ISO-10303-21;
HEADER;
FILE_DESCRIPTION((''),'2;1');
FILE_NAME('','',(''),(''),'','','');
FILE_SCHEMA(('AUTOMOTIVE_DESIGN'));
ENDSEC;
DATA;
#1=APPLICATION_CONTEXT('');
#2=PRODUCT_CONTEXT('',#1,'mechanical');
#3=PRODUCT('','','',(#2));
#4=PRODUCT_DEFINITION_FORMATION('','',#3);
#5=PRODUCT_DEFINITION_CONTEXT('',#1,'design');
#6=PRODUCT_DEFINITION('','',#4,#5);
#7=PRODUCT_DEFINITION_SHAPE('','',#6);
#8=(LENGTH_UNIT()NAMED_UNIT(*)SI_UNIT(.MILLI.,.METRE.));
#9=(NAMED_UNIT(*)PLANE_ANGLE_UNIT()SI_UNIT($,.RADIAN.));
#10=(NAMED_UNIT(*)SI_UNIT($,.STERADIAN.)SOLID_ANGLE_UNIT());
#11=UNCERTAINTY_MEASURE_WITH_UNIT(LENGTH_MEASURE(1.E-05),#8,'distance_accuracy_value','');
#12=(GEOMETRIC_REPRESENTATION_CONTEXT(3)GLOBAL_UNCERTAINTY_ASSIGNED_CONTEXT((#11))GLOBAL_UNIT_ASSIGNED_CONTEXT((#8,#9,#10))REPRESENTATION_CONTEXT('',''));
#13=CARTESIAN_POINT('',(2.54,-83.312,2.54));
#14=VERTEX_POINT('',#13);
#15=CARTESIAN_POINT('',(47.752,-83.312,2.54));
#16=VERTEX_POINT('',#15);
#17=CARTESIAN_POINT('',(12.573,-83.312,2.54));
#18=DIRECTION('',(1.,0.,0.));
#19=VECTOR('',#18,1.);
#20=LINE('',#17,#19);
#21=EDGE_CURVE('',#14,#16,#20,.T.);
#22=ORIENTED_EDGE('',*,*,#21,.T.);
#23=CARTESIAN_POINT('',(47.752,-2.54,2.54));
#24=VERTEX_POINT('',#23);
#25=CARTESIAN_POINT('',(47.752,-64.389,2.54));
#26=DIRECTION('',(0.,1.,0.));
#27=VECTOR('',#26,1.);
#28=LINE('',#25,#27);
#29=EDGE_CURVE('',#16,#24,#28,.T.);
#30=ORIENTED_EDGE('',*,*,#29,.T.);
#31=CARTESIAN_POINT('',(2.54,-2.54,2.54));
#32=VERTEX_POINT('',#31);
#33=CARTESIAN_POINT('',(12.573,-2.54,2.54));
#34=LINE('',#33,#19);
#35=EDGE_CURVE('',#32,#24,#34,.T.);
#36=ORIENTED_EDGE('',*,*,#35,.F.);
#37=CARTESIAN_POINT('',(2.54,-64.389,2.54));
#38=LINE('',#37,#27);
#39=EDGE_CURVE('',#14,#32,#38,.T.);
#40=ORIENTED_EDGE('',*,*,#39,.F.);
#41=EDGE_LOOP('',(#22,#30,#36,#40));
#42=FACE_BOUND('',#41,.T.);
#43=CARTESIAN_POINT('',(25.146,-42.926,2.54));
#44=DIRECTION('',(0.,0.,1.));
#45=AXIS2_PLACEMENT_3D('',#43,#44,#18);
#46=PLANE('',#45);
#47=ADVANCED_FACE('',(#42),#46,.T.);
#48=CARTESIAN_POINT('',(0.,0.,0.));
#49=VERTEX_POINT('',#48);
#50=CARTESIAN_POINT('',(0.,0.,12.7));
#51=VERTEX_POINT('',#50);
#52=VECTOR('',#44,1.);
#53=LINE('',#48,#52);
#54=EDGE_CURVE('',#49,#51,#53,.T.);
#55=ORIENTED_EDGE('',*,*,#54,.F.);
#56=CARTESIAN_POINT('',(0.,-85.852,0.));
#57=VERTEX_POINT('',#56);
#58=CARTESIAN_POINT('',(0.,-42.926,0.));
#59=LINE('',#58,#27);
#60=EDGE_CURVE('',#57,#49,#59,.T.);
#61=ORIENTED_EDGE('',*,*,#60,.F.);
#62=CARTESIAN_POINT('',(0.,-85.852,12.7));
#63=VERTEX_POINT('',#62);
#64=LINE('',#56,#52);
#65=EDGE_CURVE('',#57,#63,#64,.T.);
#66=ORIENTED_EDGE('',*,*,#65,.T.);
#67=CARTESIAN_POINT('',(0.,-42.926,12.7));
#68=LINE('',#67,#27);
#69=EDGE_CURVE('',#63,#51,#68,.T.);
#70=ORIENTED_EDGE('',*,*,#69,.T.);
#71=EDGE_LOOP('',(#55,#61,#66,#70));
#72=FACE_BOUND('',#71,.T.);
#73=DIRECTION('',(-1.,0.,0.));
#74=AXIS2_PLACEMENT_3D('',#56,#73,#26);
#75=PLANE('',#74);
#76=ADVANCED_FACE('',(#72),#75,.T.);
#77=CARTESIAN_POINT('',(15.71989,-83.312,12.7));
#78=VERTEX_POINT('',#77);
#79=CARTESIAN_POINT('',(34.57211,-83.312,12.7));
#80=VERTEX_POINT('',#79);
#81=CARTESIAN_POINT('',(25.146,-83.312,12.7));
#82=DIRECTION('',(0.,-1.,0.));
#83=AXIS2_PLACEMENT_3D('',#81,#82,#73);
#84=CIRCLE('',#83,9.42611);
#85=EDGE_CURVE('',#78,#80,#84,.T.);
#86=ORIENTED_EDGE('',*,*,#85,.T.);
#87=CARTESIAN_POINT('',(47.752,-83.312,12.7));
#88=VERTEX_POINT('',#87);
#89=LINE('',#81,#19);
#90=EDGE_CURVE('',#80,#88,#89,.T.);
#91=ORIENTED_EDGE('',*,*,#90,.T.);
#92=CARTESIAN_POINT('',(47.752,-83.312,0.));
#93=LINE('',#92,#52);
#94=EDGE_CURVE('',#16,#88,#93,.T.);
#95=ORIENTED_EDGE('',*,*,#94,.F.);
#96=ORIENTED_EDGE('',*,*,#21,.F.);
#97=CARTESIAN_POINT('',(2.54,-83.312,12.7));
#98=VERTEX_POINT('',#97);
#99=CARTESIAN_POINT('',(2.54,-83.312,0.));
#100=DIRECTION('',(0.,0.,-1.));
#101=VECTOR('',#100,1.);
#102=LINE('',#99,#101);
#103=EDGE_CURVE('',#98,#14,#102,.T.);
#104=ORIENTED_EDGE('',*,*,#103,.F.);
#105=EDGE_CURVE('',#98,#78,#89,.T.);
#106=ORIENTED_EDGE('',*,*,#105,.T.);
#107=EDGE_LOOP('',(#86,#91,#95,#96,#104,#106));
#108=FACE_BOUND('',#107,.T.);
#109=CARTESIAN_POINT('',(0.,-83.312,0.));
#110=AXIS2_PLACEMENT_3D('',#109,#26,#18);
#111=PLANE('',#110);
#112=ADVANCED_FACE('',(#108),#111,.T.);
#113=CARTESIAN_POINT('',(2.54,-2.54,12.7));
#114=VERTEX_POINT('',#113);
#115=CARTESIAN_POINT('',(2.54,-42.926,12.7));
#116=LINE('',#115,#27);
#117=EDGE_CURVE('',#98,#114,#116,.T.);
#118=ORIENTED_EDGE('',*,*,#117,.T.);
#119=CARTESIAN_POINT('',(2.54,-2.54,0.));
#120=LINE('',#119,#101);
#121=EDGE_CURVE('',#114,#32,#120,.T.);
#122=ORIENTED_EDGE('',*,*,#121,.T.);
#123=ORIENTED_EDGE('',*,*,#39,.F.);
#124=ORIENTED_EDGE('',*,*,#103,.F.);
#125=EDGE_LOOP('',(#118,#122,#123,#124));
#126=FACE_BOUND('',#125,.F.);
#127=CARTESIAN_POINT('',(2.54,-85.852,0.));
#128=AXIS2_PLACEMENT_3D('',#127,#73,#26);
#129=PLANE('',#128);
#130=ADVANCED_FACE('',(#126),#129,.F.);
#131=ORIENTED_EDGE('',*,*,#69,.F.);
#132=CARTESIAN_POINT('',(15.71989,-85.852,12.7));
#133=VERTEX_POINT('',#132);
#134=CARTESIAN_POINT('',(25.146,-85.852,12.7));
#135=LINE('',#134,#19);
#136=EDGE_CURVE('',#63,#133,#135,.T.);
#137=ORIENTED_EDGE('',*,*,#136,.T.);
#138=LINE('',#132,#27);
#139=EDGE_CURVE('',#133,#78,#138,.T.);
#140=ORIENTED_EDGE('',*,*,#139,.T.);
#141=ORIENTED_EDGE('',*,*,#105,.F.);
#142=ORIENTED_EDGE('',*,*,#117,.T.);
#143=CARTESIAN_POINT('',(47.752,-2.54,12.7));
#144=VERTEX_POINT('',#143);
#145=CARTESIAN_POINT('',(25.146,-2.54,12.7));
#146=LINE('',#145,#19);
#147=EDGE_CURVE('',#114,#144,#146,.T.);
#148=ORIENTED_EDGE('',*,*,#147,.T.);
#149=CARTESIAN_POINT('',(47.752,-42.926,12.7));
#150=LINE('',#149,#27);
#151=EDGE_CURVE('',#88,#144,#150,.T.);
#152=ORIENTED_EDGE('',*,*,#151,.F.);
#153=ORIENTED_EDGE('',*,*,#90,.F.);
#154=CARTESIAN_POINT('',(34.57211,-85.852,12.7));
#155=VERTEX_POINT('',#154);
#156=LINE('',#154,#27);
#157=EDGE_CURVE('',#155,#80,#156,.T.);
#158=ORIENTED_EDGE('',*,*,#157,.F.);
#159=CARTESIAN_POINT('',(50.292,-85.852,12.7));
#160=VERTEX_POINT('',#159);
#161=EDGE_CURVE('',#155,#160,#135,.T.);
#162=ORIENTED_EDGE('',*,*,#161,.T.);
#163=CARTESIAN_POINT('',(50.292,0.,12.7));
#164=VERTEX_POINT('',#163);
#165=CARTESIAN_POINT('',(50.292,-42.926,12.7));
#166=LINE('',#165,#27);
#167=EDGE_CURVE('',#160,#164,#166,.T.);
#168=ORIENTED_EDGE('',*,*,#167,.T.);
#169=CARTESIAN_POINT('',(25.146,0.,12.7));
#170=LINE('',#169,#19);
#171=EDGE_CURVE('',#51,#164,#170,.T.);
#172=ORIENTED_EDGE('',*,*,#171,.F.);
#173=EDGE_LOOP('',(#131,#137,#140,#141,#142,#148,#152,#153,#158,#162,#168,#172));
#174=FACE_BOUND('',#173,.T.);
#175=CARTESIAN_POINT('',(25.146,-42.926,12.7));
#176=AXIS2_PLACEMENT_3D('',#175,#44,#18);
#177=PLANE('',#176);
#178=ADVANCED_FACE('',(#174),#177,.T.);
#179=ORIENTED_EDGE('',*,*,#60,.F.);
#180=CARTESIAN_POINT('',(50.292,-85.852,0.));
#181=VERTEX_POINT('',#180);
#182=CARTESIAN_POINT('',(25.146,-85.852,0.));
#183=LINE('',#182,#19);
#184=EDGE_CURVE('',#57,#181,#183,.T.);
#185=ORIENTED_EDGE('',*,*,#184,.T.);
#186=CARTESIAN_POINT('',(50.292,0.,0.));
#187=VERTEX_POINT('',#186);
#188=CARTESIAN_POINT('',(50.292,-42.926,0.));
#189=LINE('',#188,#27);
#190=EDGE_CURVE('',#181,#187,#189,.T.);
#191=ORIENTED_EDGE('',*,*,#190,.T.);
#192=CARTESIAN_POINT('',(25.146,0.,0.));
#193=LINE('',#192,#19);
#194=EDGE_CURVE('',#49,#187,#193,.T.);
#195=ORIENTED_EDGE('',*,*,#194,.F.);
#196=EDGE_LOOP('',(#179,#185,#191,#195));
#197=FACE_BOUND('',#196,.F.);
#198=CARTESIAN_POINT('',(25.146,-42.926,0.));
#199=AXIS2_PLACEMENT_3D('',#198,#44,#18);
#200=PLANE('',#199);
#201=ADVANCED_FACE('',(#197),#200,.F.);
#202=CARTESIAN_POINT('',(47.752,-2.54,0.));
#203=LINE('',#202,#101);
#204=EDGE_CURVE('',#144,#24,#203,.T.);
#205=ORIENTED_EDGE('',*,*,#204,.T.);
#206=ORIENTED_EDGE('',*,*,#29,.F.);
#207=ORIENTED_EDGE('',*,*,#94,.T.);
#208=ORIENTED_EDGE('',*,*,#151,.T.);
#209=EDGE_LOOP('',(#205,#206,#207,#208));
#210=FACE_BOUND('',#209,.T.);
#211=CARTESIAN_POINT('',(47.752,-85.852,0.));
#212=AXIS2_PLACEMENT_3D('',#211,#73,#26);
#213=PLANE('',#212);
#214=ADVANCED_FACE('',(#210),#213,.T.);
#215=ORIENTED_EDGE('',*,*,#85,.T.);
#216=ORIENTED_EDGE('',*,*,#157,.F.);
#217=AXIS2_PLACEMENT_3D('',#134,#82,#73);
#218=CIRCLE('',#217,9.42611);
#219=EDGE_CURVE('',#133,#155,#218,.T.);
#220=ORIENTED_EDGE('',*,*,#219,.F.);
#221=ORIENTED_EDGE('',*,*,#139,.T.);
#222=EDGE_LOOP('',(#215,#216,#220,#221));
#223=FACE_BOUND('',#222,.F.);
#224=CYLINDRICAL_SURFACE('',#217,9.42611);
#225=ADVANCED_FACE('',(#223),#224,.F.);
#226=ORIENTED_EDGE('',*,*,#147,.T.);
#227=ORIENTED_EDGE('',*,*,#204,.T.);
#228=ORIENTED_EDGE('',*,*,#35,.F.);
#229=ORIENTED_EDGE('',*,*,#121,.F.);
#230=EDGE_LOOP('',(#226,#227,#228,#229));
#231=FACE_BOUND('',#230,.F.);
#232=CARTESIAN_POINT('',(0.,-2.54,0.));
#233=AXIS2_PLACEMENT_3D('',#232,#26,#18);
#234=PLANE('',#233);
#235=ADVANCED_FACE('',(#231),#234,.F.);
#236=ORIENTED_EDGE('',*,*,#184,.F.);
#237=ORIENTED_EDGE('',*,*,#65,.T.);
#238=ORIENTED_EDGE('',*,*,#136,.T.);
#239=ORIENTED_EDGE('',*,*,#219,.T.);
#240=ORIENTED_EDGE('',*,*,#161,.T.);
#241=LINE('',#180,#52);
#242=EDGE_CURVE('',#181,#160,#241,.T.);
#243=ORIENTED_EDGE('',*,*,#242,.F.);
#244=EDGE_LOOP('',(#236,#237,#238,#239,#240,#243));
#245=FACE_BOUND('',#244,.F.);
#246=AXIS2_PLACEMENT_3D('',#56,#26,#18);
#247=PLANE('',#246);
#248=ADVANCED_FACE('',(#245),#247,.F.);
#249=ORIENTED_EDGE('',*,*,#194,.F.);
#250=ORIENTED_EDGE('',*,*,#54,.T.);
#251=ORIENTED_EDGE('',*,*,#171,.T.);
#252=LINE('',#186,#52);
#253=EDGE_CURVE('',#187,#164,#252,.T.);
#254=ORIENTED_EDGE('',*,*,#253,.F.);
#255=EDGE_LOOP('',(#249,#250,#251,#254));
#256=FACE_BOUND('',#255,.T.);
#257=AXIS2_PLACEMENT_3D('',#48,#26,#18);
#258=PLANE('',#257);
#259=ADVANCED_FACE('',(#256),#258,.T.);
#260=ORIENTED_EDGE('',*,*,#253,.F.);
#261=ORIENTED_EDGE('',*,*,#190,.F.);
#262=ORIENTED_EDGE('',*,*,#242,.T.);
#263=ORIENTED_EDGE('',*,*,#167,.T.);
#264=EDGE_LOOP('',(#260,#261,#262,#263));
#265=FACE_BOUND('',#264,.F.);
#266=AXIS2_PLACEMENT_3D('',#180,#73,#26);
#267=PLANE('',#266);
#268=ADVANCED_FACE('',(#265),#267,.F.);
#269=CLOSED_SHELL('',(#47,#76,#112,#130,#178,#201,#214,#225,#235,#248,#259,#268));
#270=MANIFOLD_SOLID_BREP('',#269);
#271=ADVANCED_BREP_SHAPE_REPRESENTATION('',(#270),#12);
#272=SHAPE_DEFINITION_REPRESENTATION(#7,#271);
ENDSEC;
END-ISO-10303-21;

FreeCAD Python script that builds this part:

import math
import FreeCAD as App
import Part
import Sketcher
from FreeCAD import Vector
Q = App.Units.Quantity


def faces_at(feature, points):
    """Names of the faces that lie closest to the given points."""
    faces = feature.Shape.Faces
    near = lambda p: min(range(len(faces)), key=lambda i: faces[i].distToShape(Part.Vertex(*p))[0])
    return sorted({f"Face{near(p) + 1}" for p in points})

doc = App.newDocument("Part")
body = doc.addObject("PartDesign::Body", "Body")

sketch1 = body.newObject("Sketcher::SketchObject", "Sketch")
sketch1.AttachmentSupport = (doc.getObject("XY_Plane"), [""])
sketch1.MapMode = "FlatFace"
sketch1.addGeometry(Part.LineSegment(Vector(0, 0, 0), Vector(0, -86, 0)), False)
sketch1.addGeometry(Part.LineSegment(Vector(0, -86, 0), Vector(50, -86, 0)), False)
sketch1.addGeometry(Part.LineSegment(Vector(50, -86, 0), Vector(50, 0, 0)), False)
sketch1.addGeometry(Part.LineSegment(Vector(50, 0, 0), Vector(0, 0, 0)), False)
sketch1.addConstraint(Sketcher.Constraint("Coincident", 0, 2, 1, 1))
sketch1.addConstraint(Sketcher.Constraint("Coincident", 1, 2, 2, 1))
sketch1.addConstraint(Sketcher.Constraint("Coincident", 2, 2, 3, 1))
sketch1.addConstraint(Sketcher.Constraint("Coincident", 3, 2, 0, 1))
sketch1.addConstraint(Sketcher.Constraint("Vertical", 0))
sketch1.addConstraint(Sketcher.Constraint("Horizontal", 1))
sketch1.addConstraint(Sketcher.Constraint("Vertical", 2))
sketch1.addConstraint(Sketcher.Constraint("Horizontal", 3))
sketch1.addConstraint(Sketcher.Constraint("Coincident", 3, 2, -1, 1))
sketch1.addConstraint(Sketcher.Constraint("DistanceX", 1, 1, 1, 2, Q("1.98 in")))
sketch1.addConstraint(Sketcher.Constraint("DistanceY", 0, 2, 0, 1, Q("3.38 in")))
pad1 = body.newObject("PartDesign::Pad", "Pad")
pad1.Profile = sketch1
pad1.Length = Q("0.5 in")
doc.recompute()

thickness = body.newObject("PartDesign::Thickness", "Thickness")
thickness.Base = (pad1, faces_at(pad1, [(25.146, -42.926, 12.7)]))
thickness.Value = Q("0.1 in")
thickness.Reversed = True
thickness.Join = "Arc"

sketch2 = body.newObject("Sketcher::SketchObject", "Sketch001")
sketch2.AttachmentSupport = (doc.getObject("XZ_Plane"), [""])
sketch2.MapMode = "FlatFace"
sketch2.AttachmentOffset = App.Placement(Vector(0, 0, 3.38 * 25.4), App.Rotation())
sketch2.addGeometry(Part.ArcOfCircle(Part.Circle(Vector(25, 13, 0), Vector(0, 0, 1), 9), math.radians(180), math.radians(360)), False)
sketch2.addGeometry(Part.LineSegment(Vector(35, 13, 0), Vector(16, 13, 0)), False)
sketch2.addConstraint(Sketcher.Constraint("Coincident", 0, 1, 1, 2))
sketch2.addConstraint(Sketcher.Constraint("Coincident", 1, 1, 0, 2))
sketch2.addConstraint(Sketcher.Constraint("Horizontal", 1))
sketch2.addConstraint(Sketcher.Constraint("DistanceY", -1, 1, 0, 3, Q("0.5 in")))
sketch2.addConstraint(Sketcher.Constraint("DistanceY", -1, 1, 0, 1, Q("0.5 in")))
sketch2.addConstraint(Sketcher.Constraint("DistanceX", -1, 1, 0, 3, Q("0.99 in")))
sketch2.addConstraint(Sketcher.Constraint("Radius", 0, Q("9.42611 mm")))
pocket1 = body.newObject("PartDesign::Pocket", "Pocket")
pocket1.Profile = sketch2
pocket1.Length = Q("1 in")

doc.recompute()
